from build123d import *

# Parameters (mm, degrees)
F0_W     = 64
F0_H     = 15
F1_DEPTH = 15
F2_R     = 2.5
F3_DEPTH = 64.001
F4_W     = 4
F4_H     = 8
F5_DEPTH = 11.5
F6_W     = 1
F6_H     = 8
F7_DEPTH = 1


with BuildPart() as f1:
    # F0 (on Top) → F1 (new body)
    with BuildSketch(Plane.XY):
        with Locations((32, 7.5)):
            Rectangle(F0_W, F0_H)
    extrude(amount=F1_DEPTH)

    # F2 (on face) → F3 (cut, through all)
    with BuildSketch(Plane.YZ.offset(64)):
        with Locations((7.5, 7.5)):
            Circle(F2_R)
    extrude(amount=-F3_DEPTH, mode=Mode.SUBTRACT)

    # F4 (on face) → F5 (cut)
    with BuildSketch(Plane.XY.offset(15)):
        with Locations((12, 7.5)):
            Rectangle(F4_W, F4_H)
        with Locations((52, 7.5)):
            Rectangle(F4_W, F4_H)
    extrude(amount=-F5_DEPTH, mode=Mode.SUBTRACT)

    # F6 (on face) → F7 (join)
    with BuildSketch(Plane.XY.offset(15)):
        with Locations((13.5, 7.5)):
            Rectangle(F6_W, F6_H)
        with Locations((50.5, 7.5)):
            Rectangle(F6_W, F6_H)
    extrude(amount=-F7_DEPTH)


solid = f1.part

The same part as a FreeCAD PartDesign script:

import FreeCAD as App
import Part
import Sketcher

doc = App.newDocument("Part")
body = doc.addObject("PartDesign::Body", "Body")

# Sketch on XY plane
sketch1 = body.newObject("Sketcher::SketchObject", "Sketch")
sketch1.AttachmentSupport = (doc.getObject("XY_Plane"), [""])
sketch1.MapMode = "FlatFace"
sketch1.addGeometry(Part.LineSegment(App.Vector(0, 15, 0), App.Vector(0, 0, 0)), False)
sketch1.addGeometry(Part.LineSegment(App.Vector(0, 0, 0), App.Vector(64, 0, 0)), False)
sketch1.addGeometry(Part.LineSegment(App.Vector(64, 0, 0), App.Vector(64, 15, 0)), False)
sketch1.addGeometry(Part.LineSegment(App.Vector(64, 15, 0), App.Vector(0, 15, 0)), False)
sketch1.addConstraint(Sketcher.Constraint("Coincident", 0, 2, 1, 1))
sketch1.addConstraint(Sketcher.Constraint("Coincident", 1, 2, 2, 1))
sketch1.addConstraint(Sketcher.Constraint("Coincident", 2, 2, 3, 1))
sketch1.addConstraint(Sketcher.Constraint("Coincident", 3, 2, 0, 1))
sketch1.addConstraint(Sketcher.Constraint("Vertical", 0))
sketch1.addConstraint(Sketcher.Constraint("Horizontal", 1))
sketch1.addConstraint(Sketcher.Constraint("Vertical", 2))
sketch1.addConstraint(Sketcher.Constraint("Horizontal", 3))
sketch1.addConstraint(Sketcher.Constraint("Coincident", 0, 2, -1, 1))
sketch1.addConstraint(Sketcher.Constraint("DistanceX", 1, 1, 1, 2, 64.0))
sketch1.addConstraint(Sketcher.Constraint("DistanceY", 0, 2, 0, 1, 15.0))
pad1 = body.newObject("PartDesign::Pad", "Pad")
pad1.Profile = sketch1
pad1.Length = 15

# Sketch on YZ plane
sketch2 = body.newObject("Sketcher::SketchObject", "Sketch001")
sketch2.AttachmentSupport = (doc.getObject("YZ_Plane"), [""])
sketch2.MapMode = "FlatFace"
sketch2.AttachmentOffset = App.Placement(App.Vector(0, 0, 64), App.Rotation())
sketch2.addGeometry(Part.Circle(App.Vector(7.5, 7.5, 0), App.Vector(0, 0, 1), 2.5), False)
sketch2.addConstraint(Sketcher.Constraint("Diameter", 0, 5.0))
sketch2.addConstraint(Sketcher.Constraint("DistanceX", -1, 1, 0, 3, 7.5))
sketch2.addConstraint(Sketcher.Constraint("DistanceY", -1, 1, 0, 3, 7.5))
pocket1 = body.newObject("PartDesign::Pocket", "Pocket")
pocket1.Profile = sketch2
pocket1.Type = "ThroughAll"

# Sketch on XY plane
sketch3 = body.newObject("Sketcher::SketchObject", "Sketch002")
sketch3.AttachmentSupport = (doc.getObject("XY_Plane"), [""])
sketch3.MapMode = "FlatFace"
sketch3.AttachmentOffset = App.Placement(App.Vector(0, 0, 15), App.Rotation())
sketch3.addGeometry(Part.LineSegment(App.Vector(10, 11.5, 0), App.Vector(10, 3.5, 0)), False)
sketch3.addGeometry(Part.LineSegment(App.Vector(10, 3.5, 0), App.Vector(14, 3.5, 0)), False)
sketch3.addGeometry(Part.LineSegment(App.Vector(14, 3.5, 0), App.Vector(14, 11.5, 0)), False)
sketch3.addGeometry(Part.LineSegment(App.Vector(14, 11.5, 0), App.Vector(10, 11.5, 0)), False)
sketch3.addGeometry(Part.LineSegment(App.Vector(50, 11.5, 0), App.Vector(50, 3.5, 0)), False)
sketch3.addGeometry(Part.LineSegment(App.Vector(50, 3.5, 0), App.Vector(54, 3.5, 0)), False)
sketch3.addGeometry(Part.LineSegment(App.Vector(54, 3.5, 0), App.Vector(54, 11.5, 0)), False)
sketch3.addGeometry(Part.LineSegment(App.Vector(54, 11.5, 0), App.Vector(50, 11.5, 0)), False)
sketch3.addConstraint(Sketcher.Constraint("Coincident", 0, 2, 1, 1))
sketch3.addConstraint(Sketcher.Constraint("Coincident", 1, 2, 2, 1))
sketch3.addConstraint(Sketcher.Constraint("Coincident", 2, 2, 3, 1))
sketch3.addConstraint(Sketcher.Constraint("Coincident", 3, 2, 0, 1))
sketch3.addConstraint(Sketcher.Constraint("Coincident", 4, 2, 5, 1))
sketch3.addConstraint(Sketcher.Constraint("Coincident", 5, 2, 6, 1))
sketch3.addConstraint(Sketcher.Constraint("Coincident", 6, 2, 7, 1))
sketch3.addConstraint(Sketcher.Constraint("Coincident", 7, 2, 4, 1))
sketch3.addConstraint(Sketcher.Constraint("Vertical", 0))
sketch3.addConstraint(Sketcher.Constraint("Horizontal", 1))
sketch3.addConstraint(Sketcher.Constraint("Vertical", 2))
sketch3.addConstraint(Sketcher.Constraint("Horizontal", 3))
sketch3.addConstraint(Sketcher.Constraint("Vertical", 4))
sketch3.addConstraint(Sketcher.Constraint("Horizontal", 5))
sketch3.addConstraint(Sketcher.Constraint("Vertical", 6))
sketch3.addConstraint(Sketcher.Constraint("Horizontal", 7))
sketch3.addConstraint(Sketcher.Constraint("Horizontal", 1, 2, 4, 2))
sketch3.addConstraint(Sketcher.Constraint("Horizontal", 3, 2, 6, 2))
sketch3.addConstraint(Sketcher.Constraint("Equal", 3, 5))
sketch3.addConstraint(Sketcher.Constraint("DistanceX", 1, 1, 1, 2, 4.0))
sketch3.addConstraint(Sketcher.Constraint("DistanceY", 0, 2, 0, 1, 8.0))
sketch3.addConstraint(Sketcher.Constraint("DistanceX", -1, 1, 0, 2, 10.0))
sketch3.addConstraint(Sketcher.Constraint("DistanceX", -1, 1, 4, 2, 50.0))
sketch3.addConstraint(Sketcher.Constraint("DistanceY", -1, 1, 0, 2, 3.5))
pocket2 = body.newObject("PartDesign::Pocket", "Pocket001")
pocket2.Profile = sketch3
pocket2.Length = 11.5

# Sketch on XY plane
sketch4 = body.newObject("Sketcher::SketchObject", "Sketch003")
sketch4.AttachmentSupport = (doc.getObject("XY_Plane"), [""])
sketch4.MapMode = "FlatFace"
sketch4.AttachmentOffset = App.Placement(App.Vector(0, 0, 15), App.Rotation())
sketch4.addGeometry(Part.LineSegment(App.Vector(13, 11.5, 0), App.Vector(13, 3.5, 0)), False)
sketch4.addGeometry(Part.LineSegment(App.Vector(13, 3.5, 0), App.Vector(14, 3.5, 0)), False)
sketch4.addGeometry(Part.LineSegment(App.Vector(14, 3.5, 0), App.Vector(14, 11.5, 0)), False)
sketch4.addGeometry(Part.LineSegment(App.Vector(14, 11.5, 0), App.Vector(13, 11.5, 0)), False)
sketch4.addGeometry(Part.LineSegment(App.Vector(50, 11.5, 0), App.Vector(50, 3.5, 0)), False)
sketch4.addGeometry(Part.LineSegment(App.Vector(50, 3.5, 0), App.Vector(51, 3.5, 0)), False)
sketch4.addGeometry(Part.LineSegment(App.Vector(51, 3.5, 0), App.Vector(51, 11.5, 0)), False)
sketch4.addGeometry(Part.LineSegment(App.Vector(51, 11.5, 0), App.Vector(50, 11.5, 0)), False)
sketch4.addConstraint(Sketcher.Constraint("Coincident", 0, 2, 1, 1))
sketch4.addConstraint(Sketcher.Constraint("Coincident", 1, 2, 2, 1))
sketch4.addConstraint(Sketcher.Constraint("Coincident", 2, 2, 3, 1))
sketch4.addConstraint(Sketcher.Constraint("Coincident", 3, 2, 0, 1))
sketch4.addConstraint(Sketcher.Constraint("Coincident", 4, 2, 5, 1))
sketch4.addConstraint(Sketcher.Constraint("Coincident", 5, 2, 6, 1))
sketch4.addConstraint(Sketcher.Constraint("Coincident", 6, 2, 7, 1))
sketch4.addConstraint(Sketcher.Constraint("Coincident", 7, 2, 4, 1))
sketch4.addConstraint(Sketcher.Constraint("Vertical", 0))
sketch4.addConstraint(Sketcher.Constraint("Horizontal", 1))
sketch4.addConstraint(Sketcher.Constraint("Vertical", 2))
sketch4.addConstraint(Sketcher.Constraint("Horizontal", 3))
sketch4.addConstraint(Sketcher.Constraint("Vertical", 4))
sketch4.addConstraint(Sketcher.Constraint("Horizontal", 5))
sketch4.addConstraint(Sketcher.Constraint("Vertical", 6))
sketch4.addConstraint(Sketcher.Constraint("Horizontal", 7))
sketch4.addConstraint(Sketcher.Constraint("Horizontal", 1, 2, 4, 2))
sketch4.addConstraint(Sketcher.Constraint("Horizontal", 3, 2, 6, 2))
sketch4.addConstraint(Sketcher.Constraint("Equal", 3, 5))
sketch4.addConstraint(Sketcher.Constraint("DistanceX", 1, 1, 1, 2, 1.0))
sketch4.addConstraint(Sketcher.Constraint("DistanceY", 0, 2, 0, 1, 8.0))
sketch4.addConstraint(Sketcher.Constraint("DistanceX", -1, 1, 0, 2, 13.0))
sketch4.addConstraint(Sketcher.Constraint("DistanceX", -1, 1, 4, 2, 50.0))
sketch4.addConstraint(Sketcher.Constraint("DistanceY", -1, 1, 0, 2, 3.5))
pad2 = body.newObject("PartDesign::Pad", "Pad001")
pad2.Profile = sketch4
pad2.Length = 1
pad2.Reversed = True

doc.recompute()
